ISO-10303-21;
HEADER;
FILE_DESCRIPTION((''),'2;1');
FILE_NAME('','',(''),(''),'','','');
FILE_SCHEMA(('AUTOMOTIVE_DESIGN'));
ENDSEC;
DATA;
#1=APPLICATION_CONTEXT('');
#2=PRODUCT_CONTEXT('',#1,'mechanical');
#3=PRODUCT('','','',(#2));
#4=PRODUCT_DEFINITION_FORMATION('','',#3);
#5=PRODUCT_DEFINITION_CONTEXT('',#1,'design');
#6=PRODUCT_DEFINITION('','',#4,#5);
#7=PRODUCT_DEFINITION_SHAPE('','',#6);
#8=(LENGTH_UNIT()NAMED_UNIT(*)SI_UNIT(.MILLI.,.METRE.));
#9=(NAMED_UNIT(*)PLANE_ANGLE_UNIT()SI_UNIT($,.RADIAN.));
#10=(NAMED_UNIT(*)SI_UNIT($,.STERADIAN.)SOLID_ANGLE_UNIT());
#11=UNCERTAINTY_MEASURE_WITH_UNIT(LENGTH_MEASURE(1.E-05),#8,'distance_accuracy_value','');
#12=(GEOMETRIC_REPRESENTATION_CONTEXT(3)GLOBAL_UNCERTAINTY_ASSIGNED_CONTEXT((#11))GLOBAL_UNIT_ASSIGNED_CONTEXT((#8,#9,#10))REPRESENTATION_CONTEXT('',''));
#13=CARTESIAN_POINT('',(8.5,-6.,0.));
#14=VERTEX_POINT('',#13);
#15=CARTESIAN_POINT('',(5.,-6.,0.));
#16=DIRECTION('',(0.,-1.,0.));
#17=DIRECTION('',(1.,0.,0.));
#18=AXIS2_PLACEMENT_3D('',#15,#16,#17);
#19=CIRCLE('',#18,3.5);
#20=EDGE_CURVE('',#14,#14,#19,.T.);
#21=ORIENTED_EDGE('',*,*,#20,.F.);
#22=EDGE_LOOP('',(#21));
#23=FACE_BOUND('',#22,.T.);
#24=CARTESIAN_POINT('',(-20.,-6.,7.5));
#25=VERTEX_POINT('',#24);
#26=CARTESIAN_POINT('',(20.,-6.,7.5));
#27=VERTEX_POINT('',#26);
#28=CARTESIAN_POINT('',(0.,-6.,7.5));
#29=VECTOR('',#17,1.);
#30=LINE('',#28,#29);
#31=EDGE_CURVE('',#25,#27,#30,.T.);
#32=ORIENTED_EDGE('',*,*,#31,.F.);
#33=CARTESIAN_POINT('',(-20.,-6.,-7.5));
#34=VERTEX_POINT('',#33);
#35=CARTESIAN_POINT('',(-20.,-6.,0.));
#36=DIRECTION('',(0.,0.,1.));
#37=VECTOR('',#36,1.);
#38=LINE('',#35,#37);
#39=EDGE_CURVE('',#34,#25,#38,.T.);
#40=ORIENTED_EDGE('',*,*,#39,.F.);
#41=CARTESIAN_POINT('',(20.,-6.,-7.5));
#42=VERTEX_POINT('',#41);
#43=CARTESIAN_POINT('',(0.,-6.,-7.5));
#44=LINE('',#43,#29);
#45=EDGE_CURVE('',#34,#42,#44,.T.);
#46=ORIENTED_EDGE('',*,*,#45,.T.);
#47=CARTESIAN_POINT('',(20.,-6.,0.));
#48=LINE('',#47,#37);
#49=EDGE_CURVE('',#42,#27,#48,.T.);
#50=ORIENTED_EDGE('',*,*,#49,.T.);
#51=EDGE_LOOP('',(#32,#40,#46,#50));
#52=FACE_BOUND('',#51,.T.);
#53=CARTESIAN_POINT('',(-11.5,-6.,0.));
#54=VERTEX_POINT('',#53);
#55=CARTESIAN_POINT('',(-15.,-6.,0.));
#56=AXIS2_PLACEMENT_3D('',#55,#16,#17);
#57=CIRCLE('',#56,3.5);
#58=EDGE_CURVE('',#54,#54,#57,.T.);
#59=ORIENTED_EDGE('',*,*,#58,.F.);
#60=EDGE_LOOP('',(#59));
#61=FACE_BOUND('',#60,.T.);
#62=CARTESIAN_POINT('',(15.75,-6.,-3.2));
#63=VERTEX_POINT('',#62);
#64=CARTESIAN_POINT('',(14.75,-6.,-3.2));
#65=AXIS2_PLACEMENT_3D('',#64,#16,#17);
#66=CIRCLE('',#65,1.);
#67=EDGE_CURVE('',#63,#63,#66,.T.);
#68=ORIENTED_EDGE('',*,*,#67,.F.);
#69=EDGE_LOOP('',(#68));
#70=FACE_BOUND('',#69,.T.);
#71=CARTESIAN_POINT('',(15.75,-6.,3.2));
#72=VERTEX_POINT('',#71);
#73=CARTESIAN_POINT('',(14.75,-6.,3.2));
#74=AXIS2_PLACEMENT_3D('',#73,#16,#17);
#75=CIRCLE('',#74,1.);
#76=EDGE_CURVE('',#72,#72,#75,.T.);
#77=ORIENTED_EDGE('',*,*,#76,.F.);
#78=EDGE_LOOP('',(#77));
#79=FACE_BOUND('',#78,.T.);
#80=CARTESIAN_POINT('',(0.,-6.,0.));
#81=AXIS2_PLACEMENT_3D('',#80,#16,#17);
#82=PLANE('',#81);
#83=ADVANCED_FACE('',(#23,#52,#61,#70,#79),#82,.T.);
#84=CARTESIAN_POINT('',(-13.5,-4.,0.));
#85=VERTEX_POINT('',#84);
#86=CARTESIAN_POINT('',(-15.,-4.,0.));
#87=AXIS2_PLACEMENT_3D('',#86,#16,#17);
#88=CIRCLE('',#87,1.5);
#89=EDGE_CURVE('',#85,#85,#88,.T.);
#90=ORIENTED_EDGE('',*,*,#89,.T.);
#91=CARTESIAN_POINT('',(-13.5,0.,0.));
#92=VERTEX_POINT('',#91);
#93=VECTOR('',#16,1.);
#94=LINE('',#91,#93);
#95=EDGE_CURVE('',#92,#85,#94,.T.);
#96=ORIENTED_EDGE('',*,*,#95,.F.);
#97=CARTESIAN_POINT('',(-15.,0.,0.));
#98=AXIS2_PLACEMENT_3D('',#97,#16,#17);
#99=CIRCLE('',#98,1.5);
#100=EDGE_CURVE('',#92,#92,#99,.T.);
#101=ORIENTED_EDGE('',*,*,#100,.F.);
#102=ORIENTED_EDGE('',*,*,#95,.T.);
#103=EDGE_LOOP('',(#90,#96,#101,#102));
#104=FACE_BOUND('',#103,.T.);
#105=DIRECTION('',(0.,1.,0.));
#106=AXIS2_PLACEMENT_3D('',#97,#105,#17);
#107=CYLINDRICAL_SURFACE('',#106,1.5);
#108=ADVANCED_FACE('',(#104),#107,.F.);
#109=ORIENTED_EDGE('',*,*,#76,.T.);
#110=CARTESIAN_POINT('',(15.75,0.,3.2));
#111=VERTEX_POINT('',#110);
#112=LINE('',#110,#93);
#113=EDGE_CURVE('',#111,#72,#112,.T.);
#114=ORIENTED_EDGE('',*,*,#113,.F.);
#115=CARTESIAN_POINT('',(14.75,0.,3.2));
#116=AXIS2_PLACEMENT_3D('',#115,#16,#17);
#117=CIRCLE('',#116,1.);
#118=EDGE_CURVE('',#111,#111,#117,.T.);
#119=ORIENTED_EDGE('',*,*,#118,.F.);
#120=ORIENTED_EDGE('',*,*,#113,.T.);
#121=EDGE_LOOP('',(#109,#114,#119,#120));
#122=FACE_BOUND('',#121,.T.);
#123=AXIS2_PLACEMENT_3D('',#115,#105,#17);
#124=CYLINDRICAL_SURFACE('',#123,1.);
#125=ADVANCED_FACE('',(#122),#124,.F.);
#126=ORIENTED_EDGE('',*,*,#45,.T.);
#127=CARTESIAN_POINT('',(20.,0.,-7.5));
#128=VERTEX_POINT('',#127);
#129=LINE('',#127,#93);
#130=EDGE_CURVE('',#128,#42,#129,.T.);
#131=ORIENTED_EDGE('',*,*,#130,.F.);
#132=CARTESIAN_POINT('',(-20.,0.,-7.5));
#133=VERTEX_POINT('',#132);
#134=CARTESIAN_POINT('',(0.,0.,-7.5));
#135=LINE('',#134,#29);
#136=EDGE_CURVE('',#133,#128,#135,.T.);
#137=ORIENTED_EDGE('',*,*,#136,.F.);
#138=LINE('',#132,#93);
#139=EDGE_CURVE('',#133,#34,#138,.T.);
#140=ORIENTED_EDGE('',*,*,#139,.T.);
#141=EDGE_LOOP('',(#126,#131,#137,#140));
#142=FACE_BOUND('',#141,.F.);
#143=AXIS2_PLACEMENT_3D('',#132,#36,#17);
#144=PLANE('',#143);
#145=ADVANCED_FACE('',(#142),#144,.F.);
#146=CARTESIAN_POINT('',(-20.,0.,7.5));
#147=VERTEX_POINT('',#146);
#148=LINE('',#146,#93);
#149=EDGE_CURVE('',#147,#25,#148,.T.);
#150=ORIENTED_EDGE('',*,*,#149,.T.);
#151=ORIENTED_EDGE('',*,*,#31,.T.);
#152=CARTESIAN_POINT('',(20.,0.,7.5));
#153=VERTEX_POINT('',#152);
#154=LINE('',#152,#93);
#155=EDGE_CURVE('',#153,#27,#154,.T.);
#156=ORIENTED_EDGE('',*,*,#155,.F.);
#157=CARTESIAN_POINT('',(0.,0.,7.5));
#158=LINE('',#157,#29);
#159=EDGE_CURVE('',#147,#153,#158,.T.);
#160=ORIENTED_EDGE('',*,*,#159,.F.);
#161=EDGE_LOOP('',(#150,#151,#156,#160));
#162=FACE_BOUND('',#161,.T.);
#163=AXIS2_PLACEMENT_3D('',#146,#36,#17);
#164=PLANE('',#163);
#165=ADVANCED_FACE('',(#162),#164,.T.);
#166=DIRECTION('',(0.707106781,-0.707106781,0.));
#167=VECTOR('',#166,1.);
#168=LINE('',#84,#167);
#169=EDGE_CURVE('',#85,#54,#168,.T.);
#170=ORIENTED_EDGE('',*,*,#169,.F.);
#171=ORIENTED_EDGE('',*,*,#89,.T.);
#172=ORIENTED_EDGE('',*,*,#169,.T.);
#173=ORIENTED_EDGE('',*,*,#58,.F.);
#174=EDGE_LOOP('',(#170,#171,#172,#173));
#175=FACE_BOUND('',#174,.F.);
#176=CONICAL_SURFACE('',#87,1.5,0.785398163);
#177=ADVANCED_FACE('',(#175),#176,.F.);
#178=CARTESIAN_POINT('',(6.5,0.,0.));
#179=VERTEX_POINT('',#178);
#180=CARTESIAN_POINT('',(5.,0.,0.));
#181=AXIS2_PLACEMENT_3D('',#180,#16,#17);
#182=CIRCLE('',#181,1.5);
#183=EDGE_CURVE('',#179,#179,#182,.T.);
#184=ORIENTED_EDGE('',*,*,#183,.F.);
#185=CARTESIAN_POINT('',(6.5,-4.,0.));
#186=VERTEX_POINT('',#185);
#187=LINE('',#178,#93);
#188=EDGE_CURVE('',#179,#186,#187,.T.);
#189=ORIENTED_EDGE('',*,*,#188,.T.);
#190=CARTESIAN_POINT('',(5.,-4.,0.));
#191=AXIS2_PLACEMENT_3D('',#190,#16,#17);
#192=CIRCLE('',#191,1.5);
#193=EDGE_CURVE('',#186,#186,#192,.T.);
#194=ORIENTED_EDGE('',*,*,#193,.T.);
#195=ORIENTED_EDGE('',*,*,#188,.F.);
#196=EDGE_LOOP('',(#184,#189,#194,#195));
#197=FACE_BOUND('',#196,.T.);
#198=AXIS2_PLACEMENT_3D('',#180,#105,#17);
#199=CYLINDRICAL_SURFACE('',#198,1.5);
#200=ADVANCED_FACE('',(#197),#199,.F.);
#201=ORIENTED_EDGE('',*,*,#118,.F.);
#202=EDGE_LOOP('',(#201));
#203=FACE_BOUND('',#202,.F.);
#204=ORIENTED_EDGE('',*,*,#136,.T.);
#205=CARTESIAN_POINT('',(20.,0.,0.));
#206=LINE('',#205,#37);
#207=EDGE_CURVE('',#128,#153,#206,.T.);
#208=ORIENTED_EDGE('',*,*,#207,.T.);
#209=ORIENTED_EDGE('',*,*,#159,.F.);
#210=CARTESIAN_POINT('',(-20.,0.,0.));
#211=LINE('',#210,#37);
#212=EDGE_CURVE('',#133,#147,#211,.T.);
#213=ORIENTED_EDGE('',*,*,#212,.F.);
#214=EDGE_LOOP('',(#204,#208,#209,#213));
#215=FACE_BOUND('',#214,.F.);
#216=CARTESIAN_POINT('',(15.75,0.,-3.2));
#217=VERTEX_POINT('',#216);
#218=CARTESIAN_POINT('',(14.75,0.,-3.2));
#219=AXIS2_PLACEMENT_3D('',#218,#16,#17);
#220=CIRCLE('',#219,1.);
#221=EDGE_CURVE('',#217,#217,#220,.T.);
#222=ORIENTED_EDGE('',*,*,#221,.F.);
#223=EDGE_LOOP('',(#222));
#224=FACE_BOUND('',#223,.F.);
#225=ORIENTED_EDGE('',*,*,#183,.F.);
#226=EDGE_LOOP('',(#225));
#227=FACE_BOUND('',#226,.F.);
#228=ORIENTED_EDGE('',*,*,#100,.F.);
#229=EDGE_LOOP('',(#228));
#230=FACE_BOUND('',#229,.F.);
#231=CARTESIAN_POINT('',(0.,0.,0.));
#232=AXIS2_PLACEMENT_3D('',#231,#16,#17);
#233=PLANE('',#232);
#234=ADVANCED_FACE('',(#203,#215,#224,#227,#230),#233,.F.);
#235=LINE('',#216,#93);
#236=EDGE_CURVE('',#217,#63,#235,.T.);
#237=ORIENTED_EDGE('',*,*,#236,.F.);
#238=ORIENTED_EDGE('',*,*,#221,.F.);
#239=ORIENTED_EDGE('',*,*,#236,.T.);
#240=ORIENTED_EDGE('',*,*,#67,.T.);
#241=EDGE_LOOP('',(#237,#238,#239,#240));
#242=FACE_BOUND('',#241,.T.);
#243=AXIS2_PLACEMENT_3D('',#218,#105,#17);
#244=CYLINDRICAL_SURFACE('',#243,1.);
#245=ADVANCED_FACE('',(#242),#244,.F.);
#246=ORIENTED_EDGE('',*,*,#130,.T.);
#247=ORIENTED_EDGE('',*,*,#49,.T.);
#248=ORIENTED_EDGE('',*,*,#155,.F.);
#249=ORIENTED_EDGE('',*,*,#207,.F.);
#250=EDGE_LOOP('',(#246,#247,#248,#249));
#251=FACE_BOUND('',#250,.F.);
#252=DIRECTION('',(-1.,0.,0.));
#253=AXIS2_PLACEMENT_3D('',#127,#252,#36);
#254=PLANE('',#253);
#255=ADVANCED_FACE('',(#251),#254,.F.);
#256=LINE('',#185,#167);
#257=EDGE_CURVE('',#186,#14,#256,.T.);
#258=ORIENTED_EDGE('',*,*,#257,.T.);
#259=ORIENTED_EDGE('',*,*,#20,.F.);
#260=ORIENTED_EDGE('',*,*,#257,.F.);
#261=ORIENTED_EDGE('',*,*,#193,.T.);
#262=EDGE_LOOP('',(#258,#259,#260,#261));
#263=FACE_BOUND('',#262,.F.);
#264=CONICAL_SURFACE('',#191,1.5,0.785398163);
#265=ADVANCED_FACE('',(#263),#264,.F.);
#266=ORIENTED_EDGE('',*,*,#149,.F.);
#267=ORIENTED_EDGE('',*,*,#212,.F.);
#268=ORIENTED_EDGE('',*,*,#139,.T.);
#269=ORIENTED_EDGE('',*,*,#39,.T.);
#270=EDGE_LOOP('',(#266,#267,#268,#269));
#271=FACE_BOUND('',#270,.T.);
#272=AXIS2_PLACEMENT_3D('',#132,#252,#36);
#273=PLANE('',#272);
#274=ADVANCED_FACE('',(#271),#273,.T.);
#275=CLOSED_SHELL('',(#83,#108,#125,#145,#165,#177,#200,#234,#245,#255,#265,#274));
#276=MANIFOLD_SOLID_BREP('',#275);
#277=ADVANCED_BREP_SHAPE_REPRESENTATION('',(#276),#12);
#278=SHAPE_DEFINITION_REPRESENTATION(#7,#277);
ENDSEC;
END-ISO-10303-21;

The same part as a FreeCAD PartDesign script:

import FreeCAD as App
import Part
import Sketcher
Q = App.Units.Quantity


def edges_at(feature, points):
    """Names of the edges that pass closest to the given points."""
    edges = feature.Shape.Edges
    near = lambda p: min(range(len(edges)), key=lambda i: edges[i].distToShape(Part.Vertex(*p))[0])
    return sorted({f"Edge{near(p) + 1}" for p in points})


def add_polygon(sketch, points):
    """Adds a closed chain of lines whose ends are joined by coincident constraints."""
    first, n = sketch.GeometryCount, len(points)
    for a, b in zip(points, points[1:] + points[:1]):
        sketch.addGeometry(Part.LineSegment(App.Vector(*a, 0), App.Vector(*b, 0)), False)
    for i in range(n):
        sketch.addConstraint(Sketcher.Constraint("Coincident", first + i, 2, first + (i + 1) % n, 1))

doc = App.newDocument("Part")
params = doc.addObject("Spreadsheet::Sheet", "Params")
for row, (alias, value) in enumerate([
    ("sketch1_diameter", "2 mm"),
    ("sketch1_diameter2", "3 mm"),
    ("sketch1_width", "40 mm"),
    ("sketch1_height", "15 mm"),
    ("pad1_length", "6 mm"),
    ("chamfer_size", "2 mm"),
], start=1):
    params.set(f"A{row}", alias)
    params.set(f"B{row}", "=" + value)
    params.setAlias(f"B{row}", alias)

body = doc.addObject("PartDesign::Body", "Body")

# Sketch on XZ plane
sketch1 = doc.addObject("Sketcher::SketchObject", "Sketch")
body.addObject(sketch1)
sketch1.AttachmentSupport = (doc.XZ_Plane, [""])
sketch1.MapMode = "FlatFace"
add_polygon(sketch1, [(-20, 7.5), (-20, -7.5), (20, -7.5), (20, 7.5)])  # lines 0-3
sketch1.addGeometry(Part.Circle(App.Vector(14.8, -3.2, 0), App.Vector(0, 0, 1), 1), False)  # 4
sketch1.addGeometry(Part.Circle(App.Vector(-15, 0, 0), App.Vector(0, 0, 1), 1.5), False)  # 5
sketch1.addGeometry(Part.Circle(App.Vector(5, 0, 0), App.Vector(0, 0, 1), 1.5), False)  # 6
sketch1.addGeometry(Part.Circle(App.Vector(14.8, 3.2, 0), App.Vector(0, 0, 1), 1), False)  # 7
sketch1.addConstraint([
    Sketcher.Constraint("Vertical", 0),
    Sketcher.Constraint("Horizontal", 1),
    Sketcher.Constraint("Vertical", 2),
    Sketcher.Constraint("Horizontal", 3),
    Sketcher.Constraint("Equal", 5, 6),
    Sketcher.Constraint("Equal", 4, 7),
    Sketcher.Constraint("Symmetric", 0, 2, 2, 2, -1, 1),
    Sketcher.Constraint("Symmetric", 4, 3, 7, 3, -1),
    Sketcher.Constraint("PointOnObject", 5, 3, -1),
    Sketcher.Constraint("PointOnObject", 6, 3, -1),
    Sketcher.Constraint("Diameter", 4, Q("2 mm")),
    Sketcher.Constraint("Diameter", 5, Q("3 mm")),
    Sketcher.Constraint("DistanceX", 1, 1, 1, 2, Q("40 mm")),
    Sketcher.Constraint("DistanceY", 0, 2, 0, 1, Q("15 mm")),
    Sketcher.Constraint("DistanceX", 5, 3, -1, 1, Q("15 mm")),
    Sketcher.Constraint("DistanceX", -1, 1, 6, 3, Q("5 mm")),
    Sketcher.Constraint("DistanceY", 4, 3, -1, 1, Q("3.2 mm")),
    Sketcher.Constraint("DistanceX", -1, 1, 4, 3, Q("14.75 mm")),
])
sketch1.setExpression("Constraints[14]", "Params.sketch1_diameter")
sketch1.setExpression("Constraints[15]", "Params.sketch1_diameter2")
sketch1.setExpression("Constraints[16]", "Params.sketch1_width")
sketch1.setExpression("Constraints[17]", "Params.sketch1_height")
pad1 = doc.addObject("PartDesign::Pad", "Pad")
body.addObject(pad1)
pad1.Profile = sketch1
pad1.setExpression("Length", "Params.pad1_length")
doc.recompute()

chamfer = doc.addObject("PartDesign::Chamfer", "Chamfer")
body.addObject(chamfer)
chamfer.Base = (pad1, edges_at(pad1, [(-16.5, -6, 0), (3.5, -6, 0)]))
chamfer.setExpression("Size", "Params.chamfer_size")

doc.recompute()
